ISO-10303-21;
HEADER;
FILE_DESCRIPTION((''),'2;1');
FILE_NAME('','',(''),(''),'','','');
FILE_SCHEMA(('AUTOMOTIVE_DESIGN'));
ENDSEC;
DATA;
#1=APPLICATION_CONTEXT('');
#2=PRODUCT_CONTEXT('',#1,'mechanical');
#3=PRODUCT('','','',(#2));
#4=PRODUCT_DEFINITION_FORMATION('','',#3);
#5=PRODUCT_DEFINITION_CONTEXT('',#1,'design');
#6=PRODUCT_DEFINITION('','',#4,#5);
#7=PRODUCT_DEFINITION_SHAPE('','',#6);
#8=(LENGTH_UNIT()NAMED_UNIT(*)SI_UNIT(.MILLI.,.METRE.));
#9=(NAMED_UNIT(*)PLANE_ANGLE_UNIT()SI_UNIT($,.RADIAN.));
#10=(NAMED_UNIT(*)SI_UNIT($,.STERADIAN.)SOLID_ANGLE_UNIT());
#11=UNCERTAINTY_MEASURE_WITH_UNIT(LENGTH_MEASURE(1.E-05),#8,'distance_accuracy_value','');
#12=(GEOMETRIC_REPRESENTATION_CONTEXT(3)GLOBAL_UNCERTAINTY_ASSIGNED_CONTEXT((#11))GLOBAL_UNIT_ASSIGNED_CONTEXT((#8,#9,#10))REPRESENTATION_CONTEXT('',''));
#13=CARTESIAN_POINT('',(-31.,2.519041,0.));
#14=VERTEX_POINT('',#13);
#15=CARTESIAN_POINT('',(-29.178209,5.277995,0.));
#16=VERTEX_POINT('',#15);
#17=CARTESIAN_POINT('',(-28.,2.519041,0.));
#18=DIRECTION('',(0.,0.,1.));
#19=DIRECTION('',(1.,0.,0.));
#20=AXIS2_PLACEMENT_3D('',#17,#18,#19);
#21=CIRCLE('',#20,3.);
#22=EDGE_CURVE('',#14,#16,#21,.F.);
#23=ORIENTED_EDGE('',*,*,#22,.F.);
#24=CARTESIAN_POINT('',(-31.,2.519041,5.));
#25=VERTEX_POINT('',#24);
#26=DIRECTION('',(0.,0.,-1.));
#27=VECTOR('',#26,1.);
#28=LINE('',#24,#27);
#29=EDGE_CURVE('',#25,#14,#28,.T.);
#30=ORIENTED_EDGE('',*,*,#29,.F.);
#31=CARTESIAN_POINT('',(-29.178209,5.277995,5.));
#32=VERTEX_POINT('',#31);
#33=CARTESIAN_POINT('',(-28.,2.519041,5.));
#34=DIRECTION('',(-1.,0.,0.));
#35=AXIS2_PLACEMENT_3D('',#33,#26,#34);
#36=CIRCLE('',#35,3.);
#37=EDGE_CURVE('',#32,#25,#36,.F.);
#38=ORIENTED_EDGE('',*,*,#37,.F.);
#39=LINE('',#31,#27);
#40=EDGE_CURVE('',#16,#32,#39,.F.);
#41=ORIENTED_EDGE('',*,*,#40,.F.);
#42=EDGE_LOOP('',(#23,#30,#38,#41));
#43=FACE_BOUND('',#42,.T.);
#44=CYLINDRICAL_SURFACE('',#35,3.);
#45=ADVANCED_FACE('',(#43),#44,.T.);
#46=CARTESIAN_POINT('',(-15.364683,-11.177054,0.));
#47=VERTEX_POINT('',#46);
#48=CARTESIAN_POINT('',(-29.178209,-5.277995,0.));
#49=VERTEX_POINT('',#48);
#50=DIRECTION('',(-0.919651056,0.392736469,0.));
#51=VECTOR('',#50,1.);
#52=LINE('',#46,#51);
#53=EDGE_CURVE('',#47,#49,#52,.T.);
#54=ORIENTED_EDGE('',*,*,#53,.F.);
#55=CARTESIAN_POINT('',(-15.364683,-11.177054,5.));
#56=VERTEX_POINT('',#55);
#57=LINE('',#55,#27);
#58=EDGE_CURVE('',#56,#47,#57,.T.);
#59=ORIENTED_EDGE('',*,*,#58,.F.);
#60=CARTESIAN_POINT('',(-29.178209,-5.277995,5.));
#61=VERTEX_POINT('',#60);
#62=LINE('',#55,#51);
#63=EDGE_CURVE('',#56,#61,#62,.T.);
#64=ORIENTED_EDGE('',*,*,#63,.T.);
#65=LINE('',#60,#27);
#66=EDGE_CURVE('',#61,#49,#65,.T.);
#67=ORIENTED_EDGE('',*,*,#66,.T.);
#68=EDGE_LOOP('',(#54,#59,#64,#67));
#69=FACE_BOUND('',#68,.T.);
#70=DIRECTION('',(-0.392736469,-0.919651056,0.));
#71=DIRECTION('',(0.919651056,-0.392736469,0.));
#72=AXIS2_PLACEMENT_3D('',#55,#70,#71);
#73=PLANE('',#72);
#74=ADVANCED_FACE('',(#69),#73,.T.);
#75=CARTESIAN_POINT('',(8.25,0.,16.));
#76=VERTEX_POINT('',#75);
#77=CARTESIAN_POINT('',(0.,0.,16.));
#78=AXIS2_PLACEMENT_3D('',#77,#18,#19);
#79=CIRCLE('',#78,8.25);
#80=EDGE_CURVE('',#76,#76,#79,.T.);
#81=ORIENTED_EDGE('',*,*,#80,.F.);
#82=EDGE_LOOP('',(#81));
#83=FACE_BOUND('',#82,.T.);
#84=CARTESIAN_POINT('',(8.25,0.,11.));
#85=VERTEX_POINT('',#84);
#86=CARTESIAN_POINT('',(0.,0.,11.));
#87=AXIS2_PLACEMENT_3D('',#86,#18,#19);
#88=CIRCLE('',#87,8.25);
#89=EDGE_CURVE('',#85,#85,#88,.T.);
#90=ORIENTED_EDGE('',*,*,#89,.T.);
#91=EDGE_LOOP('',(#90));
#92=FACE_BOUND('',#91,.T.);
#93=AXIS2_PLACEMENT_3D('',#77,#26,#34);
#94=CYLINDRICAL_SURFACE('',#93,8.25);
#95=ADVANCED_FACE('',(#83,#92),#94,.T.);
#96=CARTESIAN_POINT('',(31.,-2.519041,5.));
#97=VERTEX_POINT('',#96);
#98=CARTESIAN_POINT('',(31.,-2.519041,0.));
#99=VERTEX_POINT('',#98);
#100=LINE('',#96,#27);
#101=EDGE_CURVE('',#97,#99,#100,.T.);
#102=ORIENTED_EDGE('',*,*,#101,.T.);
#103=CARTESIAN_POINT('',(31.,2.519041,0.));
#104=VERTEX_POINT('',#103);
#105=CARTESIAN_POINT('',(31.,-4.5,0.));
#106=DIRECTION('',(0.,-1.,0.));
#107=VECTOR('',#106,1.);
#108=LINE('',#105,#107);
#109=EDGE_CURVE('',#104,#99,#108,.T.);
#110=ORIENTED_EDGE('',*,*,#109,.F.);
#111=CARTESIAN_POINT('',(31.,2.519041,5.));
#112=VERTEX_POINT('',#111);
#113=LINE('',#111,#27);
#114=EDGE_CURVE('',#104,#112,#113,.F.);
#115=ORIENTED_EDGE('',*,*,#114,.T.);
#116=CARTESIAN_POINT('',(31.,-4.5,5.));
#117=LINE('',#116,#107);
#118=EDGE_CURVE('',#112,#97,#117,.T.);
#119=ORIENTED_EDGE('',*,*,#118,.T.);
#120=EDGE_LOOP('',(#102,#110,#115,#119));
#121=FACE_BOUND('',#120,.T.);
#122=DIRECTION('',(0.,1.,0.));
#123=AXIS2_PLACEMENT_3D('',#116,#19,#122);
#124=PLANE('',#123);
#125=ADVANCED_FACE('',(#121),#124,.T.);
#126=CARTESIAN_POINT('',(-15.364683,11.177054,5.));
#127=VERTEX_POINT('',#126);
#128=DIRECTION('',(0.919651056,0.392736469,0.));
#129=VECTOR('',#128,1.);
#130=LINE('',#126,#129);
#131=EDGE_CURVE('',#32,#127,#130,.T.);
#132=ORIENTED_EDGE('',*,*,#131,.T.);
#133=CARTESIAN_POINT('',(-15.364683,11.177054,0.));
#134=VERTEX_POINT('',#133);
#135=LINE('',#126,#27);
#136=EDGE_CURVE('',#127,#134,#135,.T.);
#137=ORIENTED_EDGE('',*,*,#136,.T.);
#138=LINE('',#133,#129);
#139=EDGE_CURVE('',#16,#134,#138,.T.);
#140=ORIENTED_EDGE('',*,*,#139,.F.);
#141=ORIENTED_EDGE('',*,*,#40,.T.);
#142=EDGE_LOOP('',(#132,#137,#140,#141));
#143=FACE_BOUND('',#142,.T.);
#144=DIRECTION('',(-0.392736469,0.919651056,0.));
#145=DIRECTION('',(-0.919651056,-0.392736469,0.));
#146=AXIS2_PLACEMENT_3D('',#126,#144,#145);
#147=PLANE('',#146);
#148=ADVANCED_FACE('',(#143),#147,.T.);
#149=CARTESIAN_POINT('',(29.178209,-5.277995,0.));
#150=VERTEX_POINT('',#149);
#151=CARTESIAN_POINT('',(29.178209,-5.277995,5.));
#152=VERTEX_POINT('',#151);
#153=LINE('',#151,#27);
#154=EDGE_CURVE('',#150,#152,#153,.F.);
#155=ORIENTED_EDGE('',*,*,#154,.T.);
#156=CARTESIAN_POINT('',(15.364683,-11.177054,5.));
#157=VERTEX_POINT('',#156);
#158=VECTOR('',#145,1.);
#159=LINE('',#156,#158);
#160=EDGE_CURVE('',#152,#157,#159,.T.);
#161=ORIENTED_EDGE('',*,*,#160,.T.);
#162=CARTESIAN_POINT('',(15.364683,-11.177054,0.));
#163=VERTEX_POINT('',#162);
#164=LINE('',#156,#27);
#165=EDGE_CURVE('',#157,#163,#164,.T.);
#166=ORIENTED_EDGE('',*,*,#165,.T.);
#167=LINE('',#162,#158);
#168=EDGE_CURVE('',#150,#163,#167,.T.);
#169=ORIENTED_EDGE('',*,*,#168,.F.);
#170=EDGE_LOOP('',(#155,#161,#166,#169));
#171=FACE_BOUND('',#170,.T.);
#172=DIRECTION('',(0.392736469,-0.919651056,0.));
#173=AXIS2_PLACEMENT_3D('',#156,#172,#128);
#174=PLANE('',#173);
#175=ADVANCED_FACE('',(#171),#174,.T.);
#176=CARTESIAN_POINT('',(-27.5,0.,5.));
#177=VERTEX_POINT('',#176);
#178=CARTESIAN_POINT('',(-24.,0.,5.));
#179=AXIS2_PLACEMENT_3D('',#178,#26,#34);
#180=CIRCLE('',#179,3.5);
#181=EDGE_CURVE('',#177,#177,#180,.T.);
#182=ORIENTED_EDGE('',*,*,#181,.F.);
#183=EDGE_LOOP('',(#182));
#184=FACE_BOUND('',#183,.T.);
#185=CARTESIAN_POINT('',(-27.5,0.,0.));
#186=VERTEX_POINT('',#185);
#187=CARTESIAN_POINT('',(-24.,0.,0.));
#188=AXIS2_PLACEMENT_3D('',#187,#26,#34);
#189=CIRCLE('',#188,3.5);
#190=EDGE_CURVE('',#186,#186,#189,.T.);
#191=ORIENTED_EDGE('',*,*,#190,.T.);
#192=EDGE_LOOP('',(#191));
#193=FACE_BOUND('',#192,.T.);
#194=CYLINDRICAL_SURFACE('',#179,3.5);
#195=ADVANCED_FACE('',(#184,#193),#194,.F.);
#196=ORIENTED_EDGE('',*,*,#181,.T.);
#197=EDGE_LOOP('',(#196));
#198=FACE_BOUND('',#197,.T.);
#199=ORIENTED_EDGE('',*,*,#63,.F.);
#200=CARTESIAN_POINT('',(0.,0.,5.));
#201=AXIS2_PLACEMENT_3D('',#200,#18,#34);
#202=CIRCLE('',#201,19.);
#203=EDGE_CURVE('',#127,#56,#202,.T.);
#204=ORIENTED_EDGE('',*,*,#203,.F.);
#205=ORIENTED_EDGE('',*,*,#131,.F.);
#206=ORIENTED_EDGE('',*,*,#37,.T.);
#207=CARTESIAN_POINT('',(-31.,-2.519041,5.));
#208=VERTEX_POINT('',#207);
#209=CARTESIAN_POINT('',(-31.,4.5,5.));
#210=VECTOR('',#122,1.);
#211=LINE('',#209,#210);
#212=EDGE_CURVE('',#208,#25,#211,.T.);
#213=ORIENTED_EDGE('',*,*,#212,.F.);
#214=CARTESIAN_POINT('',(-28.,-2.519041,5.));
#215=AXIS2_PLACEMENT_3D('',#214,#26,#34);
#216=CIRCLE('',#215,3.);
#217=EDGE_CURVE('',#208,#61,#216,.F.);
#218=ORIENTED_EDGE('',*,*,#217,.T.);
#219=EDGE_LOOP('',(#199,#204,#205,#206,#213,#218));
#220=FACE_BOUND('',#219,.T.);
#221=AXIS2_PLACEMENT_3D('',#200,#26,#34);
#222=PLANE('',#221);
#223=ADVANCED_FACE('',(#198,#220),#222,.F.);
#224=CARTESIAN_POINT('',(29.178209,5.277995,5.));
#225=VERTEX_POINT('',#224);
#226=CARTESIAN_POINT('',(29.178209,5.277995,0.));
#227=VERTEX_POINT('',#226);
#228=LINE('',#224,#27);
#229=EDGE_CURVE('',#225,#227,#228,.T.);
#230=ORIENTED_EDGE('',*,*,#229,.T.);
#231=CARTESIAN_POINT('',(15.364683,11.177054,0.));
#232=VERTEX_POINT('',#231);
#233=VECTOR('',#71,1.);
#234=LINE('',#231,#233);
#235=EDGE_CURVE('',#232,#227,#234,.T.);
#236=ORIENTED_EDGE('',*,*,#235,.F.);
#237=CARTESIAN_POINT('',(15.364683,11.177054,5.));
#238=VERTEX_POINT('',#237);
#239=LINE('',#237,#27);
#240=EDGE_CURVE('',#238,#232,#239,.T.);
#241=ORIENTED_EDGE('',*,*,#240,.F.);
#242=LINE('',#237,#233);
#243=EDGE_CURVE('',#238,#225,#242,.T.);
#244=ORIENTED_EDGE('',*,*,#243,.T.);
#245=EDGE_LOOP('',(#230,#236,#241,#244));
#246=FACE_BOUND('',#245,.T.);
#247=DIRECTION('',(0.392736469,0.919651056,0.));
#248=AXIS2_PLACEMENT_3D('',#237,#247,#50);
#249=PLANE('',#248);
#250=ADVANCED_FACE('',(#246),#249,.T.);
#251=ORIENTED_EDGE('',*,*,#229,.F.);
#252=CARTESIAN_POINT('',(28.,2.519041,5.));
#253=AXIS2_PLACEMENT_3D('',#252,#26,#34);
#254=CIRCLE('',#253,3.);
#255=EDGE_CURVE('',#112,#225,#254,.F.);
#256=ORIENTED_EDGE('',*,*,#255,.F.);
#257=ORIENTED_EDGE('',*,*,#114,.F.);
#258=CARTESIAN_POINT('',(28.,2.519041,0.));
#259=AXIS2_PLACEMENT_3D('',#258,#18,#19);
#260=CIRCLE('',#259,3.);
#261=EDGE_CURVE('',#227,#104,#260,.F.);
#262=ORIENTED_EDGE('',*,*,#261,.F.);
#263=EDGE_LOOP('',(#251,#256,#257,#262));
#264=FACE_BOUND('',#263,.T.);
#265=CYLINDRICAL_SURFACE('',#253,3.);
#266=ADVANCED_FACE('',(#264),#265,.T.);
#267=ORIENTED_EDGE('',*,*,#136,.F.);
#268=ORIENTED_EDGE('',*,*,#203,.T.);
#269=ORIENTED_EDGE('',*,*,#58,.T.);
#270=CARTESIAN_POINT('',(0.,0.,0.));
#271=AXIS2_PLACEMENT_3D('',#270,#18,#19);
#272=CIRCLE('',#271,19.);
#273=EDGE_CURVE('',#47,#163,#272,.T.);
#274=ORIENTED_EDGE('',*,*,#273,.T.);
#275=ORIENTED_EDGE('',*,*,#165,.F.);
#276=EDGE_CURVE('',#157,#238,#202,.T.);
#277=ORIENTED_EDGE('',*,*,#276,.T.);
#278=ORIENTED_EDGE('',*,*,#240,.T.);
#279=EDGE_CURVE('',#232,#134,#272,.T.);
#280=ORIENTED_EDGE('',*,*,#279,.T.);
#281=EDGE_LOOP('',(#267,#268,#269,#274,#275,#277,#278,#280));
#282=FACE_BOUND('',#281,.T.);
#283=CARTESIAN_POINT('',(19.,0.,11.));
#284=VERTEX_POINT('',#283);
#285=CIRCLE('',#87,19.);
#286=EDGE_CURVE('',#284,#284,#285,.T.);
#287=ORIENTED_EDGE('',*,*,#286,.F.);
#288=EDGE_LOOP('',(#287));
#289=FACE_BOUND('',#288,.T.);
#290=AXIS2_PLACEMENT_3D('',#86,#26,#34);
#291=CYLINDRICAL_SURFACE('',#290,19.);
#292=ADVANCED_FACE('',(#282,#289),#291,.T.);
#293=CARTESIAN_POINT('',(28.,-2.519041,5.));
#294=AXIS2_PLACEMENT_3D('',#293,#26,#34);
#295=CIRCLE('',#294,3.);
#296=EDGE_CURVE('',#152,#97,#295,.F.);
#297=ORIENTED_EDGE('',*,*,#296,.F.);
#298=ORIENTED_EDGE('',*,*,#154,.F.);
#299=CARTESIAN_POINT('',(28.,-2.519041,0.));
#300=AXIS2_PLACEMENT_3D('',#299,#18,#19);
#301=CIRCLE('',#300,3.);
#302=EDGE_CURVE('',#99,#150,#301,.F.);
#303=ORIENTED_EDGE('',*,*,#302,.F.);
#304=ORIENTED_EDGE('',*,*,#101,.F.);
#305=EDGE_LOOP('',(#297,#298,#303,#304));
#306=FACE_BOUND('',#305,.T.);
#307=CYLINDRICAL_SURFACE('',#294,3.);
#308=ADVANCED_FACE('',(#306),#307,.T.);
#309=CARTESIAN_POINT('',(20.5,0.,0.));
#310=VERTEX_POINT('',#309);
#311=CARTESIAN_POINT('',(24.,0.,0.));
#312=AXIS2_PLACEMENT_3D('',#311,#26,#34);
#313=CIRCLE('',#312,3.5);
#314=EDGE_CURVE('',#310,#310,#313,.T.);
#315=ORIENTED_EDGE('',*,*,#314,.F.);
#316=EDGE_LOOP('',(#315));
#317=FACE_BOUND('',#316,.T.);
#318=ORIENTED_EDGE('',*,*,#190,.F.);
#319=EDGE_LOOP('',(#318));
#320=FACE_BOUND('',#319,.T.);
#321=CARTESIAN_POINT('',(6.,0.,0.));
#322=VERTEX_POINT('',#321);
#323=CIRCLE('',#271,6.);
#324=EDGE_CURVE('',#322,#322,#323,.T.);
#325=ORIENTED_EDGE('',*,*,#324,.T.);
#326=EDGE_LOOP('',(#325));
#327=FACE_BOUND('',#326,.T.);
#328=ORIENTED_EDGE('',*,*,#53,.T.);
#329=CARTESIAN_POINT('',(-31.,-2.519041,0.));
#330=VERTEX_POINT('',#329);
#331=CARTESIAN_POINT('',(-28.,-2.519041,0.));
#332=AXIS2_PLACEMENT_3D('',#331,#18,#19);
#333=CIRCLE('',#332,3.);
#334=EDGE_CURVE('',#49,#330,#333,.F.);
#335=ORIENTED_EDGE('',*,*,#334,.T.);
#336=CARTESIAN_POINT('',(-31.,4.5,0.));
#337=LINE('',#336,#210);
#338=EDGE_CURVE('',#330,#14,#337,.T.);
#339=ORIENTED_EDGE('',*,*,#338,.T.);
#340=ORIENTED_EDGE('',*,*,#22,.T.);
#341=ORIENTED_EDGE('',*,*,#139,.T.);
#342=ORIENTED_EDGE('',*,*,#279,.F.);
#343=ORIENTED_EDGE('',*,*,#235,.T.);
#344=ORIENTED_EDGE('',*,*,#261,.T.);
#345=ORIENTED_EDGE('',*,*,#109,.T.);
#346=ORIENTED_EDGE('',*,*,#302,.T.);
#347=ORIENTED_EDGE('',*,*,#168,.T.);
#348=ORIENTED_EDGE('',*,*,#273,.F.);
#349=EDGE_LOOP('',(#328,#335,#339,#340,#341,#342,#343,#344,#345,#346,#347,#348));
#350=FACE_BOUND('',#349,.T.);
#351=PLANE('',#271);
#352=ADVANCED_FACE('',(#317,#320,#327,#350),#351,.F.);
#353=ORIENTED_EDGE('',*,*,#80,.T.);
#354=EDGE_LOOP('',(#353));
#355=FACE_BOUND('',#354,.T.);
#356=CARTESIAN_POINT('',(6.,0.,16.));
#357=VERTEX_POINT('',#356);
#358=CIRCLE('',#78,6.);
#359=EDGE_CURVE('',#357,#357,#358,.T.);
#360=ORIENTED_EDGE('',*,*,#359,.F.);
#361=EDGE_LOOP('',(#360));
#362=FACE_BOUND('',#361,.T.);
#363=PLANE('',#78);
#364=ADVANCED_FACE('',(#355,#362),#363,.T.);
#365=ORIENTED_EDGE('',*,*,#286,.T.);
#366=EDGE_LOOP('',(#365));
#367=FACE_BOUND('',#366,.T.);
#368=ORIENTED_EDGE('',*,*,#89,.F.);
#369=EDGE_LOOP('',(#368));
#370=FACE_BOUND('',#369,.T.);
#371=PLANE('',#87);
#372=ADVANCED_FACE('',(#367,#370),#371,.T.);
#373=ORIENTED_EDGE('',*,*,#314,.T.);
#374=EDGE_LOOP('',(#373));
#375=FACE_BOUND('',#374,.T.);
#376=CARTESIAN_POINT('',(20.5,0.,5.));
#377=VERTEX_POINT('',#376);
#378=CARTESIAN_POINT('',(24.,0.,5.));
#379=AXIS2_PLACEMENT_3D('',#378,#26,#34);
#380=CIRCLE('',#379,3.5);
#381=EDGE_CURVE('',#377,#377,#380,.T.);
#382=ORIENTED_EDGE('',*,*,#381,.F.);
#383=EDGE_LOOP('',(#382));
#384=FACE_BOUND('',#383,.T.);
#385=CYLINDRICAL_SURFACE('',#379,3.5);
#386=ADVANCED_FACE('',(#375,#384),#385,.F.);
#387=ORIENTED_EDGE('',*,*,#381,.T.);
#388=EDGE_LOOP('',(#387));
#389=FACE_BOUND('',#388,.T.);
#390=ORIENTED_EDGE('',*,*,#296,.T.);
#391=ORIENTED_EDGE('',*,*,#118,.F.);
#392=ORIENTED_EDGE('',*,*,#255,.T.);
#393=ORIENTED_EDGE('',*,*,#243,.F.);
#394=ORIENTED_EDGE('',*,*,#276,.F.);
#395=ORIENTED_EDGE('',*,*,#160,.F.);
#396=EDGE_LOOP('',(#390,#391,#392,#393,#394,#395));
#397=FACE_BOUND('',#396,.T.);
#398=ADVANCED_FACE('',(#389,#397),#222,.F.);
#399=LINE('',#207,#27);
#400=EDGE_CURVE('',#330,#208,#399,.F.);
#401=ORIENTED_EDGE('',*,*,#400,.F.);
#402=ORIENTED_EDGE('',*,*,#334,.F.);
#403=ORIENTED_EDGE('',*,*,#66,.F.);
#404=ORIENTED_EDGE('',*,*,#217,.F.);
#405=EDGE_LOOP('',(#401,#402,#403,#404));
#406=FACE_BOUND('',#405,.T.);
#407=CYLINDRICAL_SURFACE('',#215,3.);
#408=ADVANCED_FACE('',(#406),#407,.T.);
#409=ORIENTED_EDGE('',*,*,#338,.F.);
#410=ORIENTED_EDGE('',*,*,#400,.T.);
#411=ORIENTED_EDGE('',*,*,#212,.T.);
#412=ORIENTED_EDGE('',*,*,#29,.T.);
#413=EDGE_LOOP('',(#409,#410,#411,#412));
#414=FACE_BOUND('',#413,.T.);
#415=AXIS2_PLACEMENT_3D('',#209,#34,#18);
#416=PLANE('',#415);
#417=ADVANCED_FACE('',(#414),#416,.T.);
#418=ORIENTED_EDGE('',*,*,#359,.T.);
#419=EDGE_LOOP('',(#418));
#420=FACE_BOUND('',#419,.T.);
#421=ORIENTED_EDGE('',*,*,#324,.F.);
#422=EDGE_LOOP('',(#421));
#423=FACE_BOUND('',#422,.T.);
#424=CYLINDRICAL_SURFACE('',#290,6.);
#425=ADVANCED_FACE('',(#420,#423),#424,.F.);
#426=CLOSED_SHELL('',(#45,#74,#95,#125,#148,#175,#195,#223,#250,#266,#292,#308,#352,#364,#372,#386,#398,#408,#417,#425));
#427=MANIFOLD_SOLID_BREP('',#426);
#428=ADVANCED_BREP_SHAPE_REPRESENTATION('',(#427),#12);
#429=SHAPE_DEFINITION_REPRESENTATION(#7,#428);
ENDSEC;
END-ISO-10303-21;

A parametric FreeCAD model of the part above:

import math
import FreeCAD as App
import Part
import Sketcher


def edges_at(feature, points):
    """Names of the edges that pass closest to the given points."""
    edges = feature.Shape.Edges
    near = lambda p: min(range(len(edges)), key=lambda i: edges[i].distToShape(Part.Vertex(*p))[0])
    return sorted({f"Edge{near(p) + 1}" for p in points})

doc = App.newDocument("Part")
body = doc.addObject("PartDesign::Body", "Body")

sketch1 = body.newObject("Sketcher::SketchObject", "Sketch")
sketch1.AttachmentSupport = (doc.getObject("XY_Plane"), [""])
sketch1.MapMode = "FlatFace"
sketch1.addGeometry([
    Part.Circle(App.Vector(0, 0, 0), App.Vector(0, 0, 1), 19),
    Part.Circle(App.Vector(0, 0, 0), App.Vector(0, 0, 1), 6),
], False)
sketch1.addConstraint([
    Sketcher.Constraint("Coincident", 0, 3, -1, 1),
    Sketcher.Constraint("Coincident", 1, 3, -1, 1),
    Sketcher.Constraint("Diameter", 0, 38.0),
    Sketcher.Constraint("Diameter", 1, 12.0),
])
pad1 = body.newObject("PartDesign::Pad", "Pad")
pad1.Profile = sketch1
pad1.Length = 11

sketch2 = body.newObject("Sketcher::SketchObject", "Sketch001")
sketch2.AttachmentSupport = (doc.getObject("XY_Plane"), [""])
sketch2.MapMode = "FlatFace"
sketch2.AttachmentOffset = App.Placement(App.Vector(0, 0, 11), App.Rotation())
sketch2.addGeometry([
    Part.Circle(App.Vector(0, 0, 0), App.Vector(0, 0, 1), 8),
    Part.Circle(App.Vector(0, 0, 0), App.Vector(0, 0, 1), 6),
], False)
sketch2.addConstraint([
    Sketcher.Constraint("Coincident", 0, 3, -1, 1),
    Sketcher.Constraint("Coincident", 1, 3, -1, 1),
    Sketcher.Constraint("Diameter", 1, 12.0),
    Sketcher.Constraint("Diameter", 0, 16.5),
])
pad2 = body.newObject("PartDesign::Pad", "Pad001")
pad2.Profile = sketch2
pad2.Length = 5

sketch3 = body.newObject("Sketcher::SketchObject", "Sketch002")
sketch3.AttachmentSupport = (doc.getObject("XY_Plane"), [""])
sketch3.MapMode = "FlatFace"
sketch3.addGeometry([
    Part.LineSegment(App.Vector(-31, -4.5, 0), App.Vector(-31, 4.5, 0)),
    Part.LineSegment(App.Vector(-31, 4.5, 0), App.Vector(-15.4, 11.2, 0)),
    Part.ArcOfCircle(Part.Circle(App.Vector(0, 0, 0), App.Vector(0, 0, 1), 19), math.radians(144), math.radians(216)),
    Part.LineSegment(App.Vector(-15.4, -11.2, 0), App.Vector(-31, -4.5, 0)),
    Part.Circle(App.Vector(-24, 0, 0), App.Vector(0, 0, 1), 3.5),
    Part.LineSegment(App.Vector(31, -4.5, 0), App.Vector(15.4, -11.2, 0)),
    Part.ArcOfCircle(Part.Circle(App.Vector(0, 0, 0), App.Vector(0, 0, 1), 19), math.radians(-36), math.radians(36)),
    Part.LineSegment(App.Vector(15.4, 11.2, 0), App.Vector(31, 4.5, 0)),
    Part.LineSegment(App.Vector(31, 4.5, 0), App.Vector(31, -4.5, 0)),
    Part.Circle(App.Vector(24, 0, 0), App.Vector(0, 0, 1), 3.5),
], False)
sketch3.addConstraint([
    Sketcher.Constraint("Coincident", 0, 2, 1, 1),
    Sketcher.Constraint("Coincident", 1, 2, 2, 1),
    Sketcher.Constraint("Coincident", 2, 2, 3, 1),
    Sketcher.Constraint("Coincident", 3, 2, 0, 1),
    Sketcher.Constraint("Coincident", 5, 2, 6, 1),
    Sketcher.Constraint("Coincident", 6, 2, 7, 1),
    Sketcher.Constraint("Coincident", 7, 2, 8, 1),
    Sketcher.Constraint("Coincident", 8, 2, 5, 1),
    Sketcher.Constraint("Vertical", 0),
    Sketcher.Constraint("Vertical", 8),
    Sketcher.Constraint("Coincident", 2, 3, -1, 1),
    Sketcher.Constraint("Coincident", 6, 3, -1, 1),
    Sketcher.Constraint("Equal", 2, 6),
    Sketcher.Constraint("Equal", 4, 9),
    Sketcher.Constraint("Symmetric", 4, 3, 9, 3, -1, 1),
    Sketcher.Constraint("Symmetric", 3, 2, 7, 2, -1, 1),
    Sketcher.Constraint("PointOnObject", 4, 3, -1),
    Sketcher.Constraint("Parallel", 1, 5),
    Sketcher.Constraint("Parallel", 3, 7),
    Sketcher.Constraint("Horizontal", 2, 2, 5, 2),
    Sketcher.Constraint("Horizontal", 1, 2, 6, 2),
    Sketcher.Constraint("Horizontal", 0, 2, 7, 2),
    Sketcher.Constraint("Diameter", 4, 7.0),
    Sketcher.Constraint("Radius", 2, 19.0),
    Sketcher.Constraint("DistanceY", 0, 1, 0, 2, 9.0),
    Sketcher.Constraint("DistanceX", 4, 3, -1, 1, 24.0),
    Sketcher.Constraint("DistanceX", 0, 2, -1, 1, 31.0),
    Sketcher.Constraint("Distance", 1, 17.001358),
])
pad3 = body.newObject("PartDesign::Pad", "Pad002")
pad3.Profile = sketch3
pad3.Length = 5
doc.recompute()

fillet = body.newObject("PartDesign::Fillet", "Fillet")
fillet.Base = (pad3, edges_at(pad3, [
    (31, -4.5, 2.5),
    (31, 4.5, 2.5),
    (-31, 4.5, 2.5),
    (-31, -4.5, 2.5),
]))
fillet.Radius = 3

doc.recompute()
